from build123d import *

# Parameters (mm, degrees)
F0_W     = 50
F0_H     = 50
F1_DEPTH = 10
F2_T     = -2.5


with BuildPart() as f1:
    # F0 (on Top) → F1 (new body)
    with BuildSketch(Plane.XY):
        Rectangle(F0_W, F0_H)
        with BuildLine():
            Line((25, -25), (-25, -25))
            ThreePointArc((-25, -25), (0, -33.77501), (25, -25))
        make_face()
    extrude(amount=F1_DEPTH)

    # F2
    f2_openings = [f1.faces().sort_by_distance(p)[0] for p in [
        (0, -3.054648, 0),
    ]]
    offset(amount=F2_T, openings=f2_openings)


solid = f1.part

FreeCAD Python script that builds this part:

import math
import FreeCAD as App
import Part
import Sketcher

V = App.Vector


def faces_at(feature, points):
    """Names of the faces that lie closest to the given points."""
    faces = feature.Shape.Faces
    near = lambda p: min(range(len(faces)), key=lambda i: faces[i].distToShape(Part.Vertex(*p))[0])
    return sorted({f"Face{near(p) + 1}" for p in points})

doc = App.newDocument("Part")
body = doc.addObject("PartDesign::Body", "Body")

# Sketch on XY plane
sketch1 = body.newObject("Sketcher::SketchObject", "Sketch")
sketch1.AttachmentSupport = (doc.getObject("XY_Plane"), [""])
sketch1.MapMode = "FlatFace"
sketch1.addGeometry([
    Part.LineSegment(V(-25, 25, 0), V(-25, -25, 0)),
    Part.ArcOfCircle(Part.Circle(V(0, 6.22499, 0), V(0, 0, 1), 40), math.radians(-128.682187), math.radians(-51.317813)),
    Part.LineSegment(V(25, -25, 0), V(25, 25, 0)),
    Part.LineSegment(V(25, 25, 0), V(-25, 25, 0)),
], False)
sketch1.addConstraint([
    Sketcher.Constraint("Coincident", 0, 2, 1, 1),
    Sketcher.Constraint("Coincident", 1, 2, 2, 1),
    Sketcher.Constraint("Coincident", 2, 2, 3, 1),
    Sketcher.Constraint("Coincident", 3, 2, 0, 1),
    Sketcher.Constraint("Vertical", 0),
    Sketcher.Constraint("Vertical", 2),
    Sketcher.Constraint("Horizontal", 3),
    Sketcher.Constraint("Symmetric", 0, 2, 2, 2, -1, 1),
    Sketcher.Constraint("PointOnObject", 1, 3, -2),
    Sketcher.Constraint("Equal", 3, 0),
    Sketcher.Constraint("Radius", 1, 40.0),
    Sketcher.Constraint("DistanceX", 3, 2, 3, 1, 50.0),
])
pad1 = body.newObject("PartDesign::Pad", "Pad")
pad1.Profile = sketch1
pad1.Length = 10
doc.recompute()

thickness = body.newObject("PartDesign::Thickness", "Thickness")
thickness.Base = (pad1, faces_at(pad1, [(0, -4.388, 0)]))
thickness.Value = 2.5
thickness.Reversed = True
thickness.Join = "Arc"

doc.recompute()
